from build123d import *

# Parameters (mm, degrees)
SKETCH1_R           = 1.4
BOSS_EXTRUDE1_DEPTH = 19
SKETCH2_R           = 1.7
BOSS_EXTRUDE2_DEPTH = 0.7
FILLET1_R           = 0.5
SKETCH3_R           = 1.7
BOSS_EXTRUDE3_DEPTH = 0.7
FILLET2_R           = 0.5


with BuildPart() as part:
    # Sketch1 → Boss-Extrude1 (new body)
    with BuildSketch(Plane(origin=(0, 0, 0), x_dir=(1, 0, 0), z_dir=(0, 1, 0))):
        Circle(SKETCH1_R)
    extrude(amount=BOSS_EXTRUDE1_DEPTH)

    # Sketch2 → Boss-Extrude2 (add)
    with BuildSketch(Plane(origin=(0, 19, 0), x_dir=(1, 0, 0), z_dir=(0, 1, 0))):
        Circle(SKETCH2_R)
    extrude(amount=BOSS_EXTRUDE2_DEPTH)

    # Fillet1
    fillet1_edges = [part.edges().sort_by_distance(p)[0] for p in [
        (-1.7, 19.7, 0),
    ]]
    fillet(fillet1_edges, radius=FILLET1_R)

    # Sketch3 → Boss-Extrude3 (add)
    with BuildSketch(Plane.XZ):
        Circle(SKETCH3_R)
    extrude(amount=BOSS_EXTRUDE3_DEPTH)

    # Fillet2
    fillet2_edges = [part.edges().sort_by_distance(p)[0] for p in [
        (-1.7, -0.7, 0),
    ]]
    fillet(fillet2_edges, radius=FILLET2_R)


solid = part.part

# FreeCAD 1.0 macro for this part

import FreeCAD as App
import Part
import Sketcher
from FreeCAD import Vector
Q = App.Units.Quantity


def edges_at(feature, points):
    """Names of the edges that pass closest to the given points."""
    edges = feature.Shape.Edges
    near = lambda p: min(range(len(edges)), key=lambda i: edges[i].distToShape(Part.Vertex(*p))[0])
    return sorted({f"Edge{near(p) + 1}" for p in points})

doc = App.newDocument("Part")
body = doc.addObject("PartDesign::Body", "Body")

# Sketch on XZ plane
sketch1 = doc.addObject("Sketcher::SketchObject", "Sketch")
body.addObject(sketch1)
sketch1.AttachmentSupport = (doc.XZ_Plane, [""])
sketch1.MapMode = "FlatFace"
sketch1.addGeometry(Part.Circle(Vector(0, 0, 0), Vector(0, 0, 1), 1.4), False)
sketch1.addConstraint([
    Sketcher.Constraint("Coincident", 0, 3, -1, 1),
    Sketcher.Constraint("Diameter", 0, Q("2.8 mm")),
])
pad1 = doc.addObject("PartDesign::Pad", "Pad")
body.addObject(pad1)
pad1.Profile = sketch1
pad1.Length = 19
pad1.Reversed = True

# Sketch on XZ plane
sketch2 = doc.addObject("Sketcher::SketchObject", "Sketch001")
body.addObject(sketch2)
sketch2.AttachmentSupport = (doc.XZ_Plane, [""])
sketch2.MapMode = "FlatFace"
sketch2.AttachmentOffset = App.Placement(Vector(0, 0, -19), App.Rotation())
sketch2.addGeometry(Part.Circle(Vector(0, 0, 0), Vector(0, 0, 1), 1.7), False)
sketch2.addConstraint([
    Sketcher.Constraint("Coincident", 0, 3, -1, 1),
    Sketcher.Constraint("Diameter", 0, Q("3.4 mm")),
])
pad2 = doc.addObject("PartDesign::Pad", "Pad001")
body.addObject(pad2)
pad2.Profile = sketch2
pad2.Length = 0.7
pad2.Reversed = True
doc.recompute()

fillet = doc.addObject("PartDesign::Fillet", "Fillet")
body.addObject(fillet)
fillet.Base = (pad2, edges_at(pad2, [(-1.7, 19.7, 0)]))
fillet.Radius = 0.5

# Sketch on XZ plane
sketch3 = doc.addObject("Sketcher::SketchObject", "Sketch002")
body.addObject(sketch3)
sketch3.AttachmentSupport = (doc.XZ_Plane, [""])
sketch3.MapMode = "FlatFace"
sketch3.addGeometry(Part.Circle(Vector(0, 0, 0), Vector(0, 0, 1), 1.7), False)
sketch3.addConstraint([
    Sketcher.Constraint("Coincident", 0, 3, -1, 1),
    Sketcher.Constraint("Diameter", 0, Q("3.4 mm")),
])
pad3 = doc.addObject("PartDesign::Pad", "Pad002")
body.addObject(pad3)
pad3.Profile = sketch3
pad3.Length = 0.7
doc.recompute()

fillet2 = doc.addObject("PartDesign::Fillet", "Fillet001")
body.addObject(fillet2)
fillet2.Base = (pad3, edges_at(pad3, [(-1.7, -0.7, 0)]))
fillet2.Radius = 0.5

doc.recompute()
